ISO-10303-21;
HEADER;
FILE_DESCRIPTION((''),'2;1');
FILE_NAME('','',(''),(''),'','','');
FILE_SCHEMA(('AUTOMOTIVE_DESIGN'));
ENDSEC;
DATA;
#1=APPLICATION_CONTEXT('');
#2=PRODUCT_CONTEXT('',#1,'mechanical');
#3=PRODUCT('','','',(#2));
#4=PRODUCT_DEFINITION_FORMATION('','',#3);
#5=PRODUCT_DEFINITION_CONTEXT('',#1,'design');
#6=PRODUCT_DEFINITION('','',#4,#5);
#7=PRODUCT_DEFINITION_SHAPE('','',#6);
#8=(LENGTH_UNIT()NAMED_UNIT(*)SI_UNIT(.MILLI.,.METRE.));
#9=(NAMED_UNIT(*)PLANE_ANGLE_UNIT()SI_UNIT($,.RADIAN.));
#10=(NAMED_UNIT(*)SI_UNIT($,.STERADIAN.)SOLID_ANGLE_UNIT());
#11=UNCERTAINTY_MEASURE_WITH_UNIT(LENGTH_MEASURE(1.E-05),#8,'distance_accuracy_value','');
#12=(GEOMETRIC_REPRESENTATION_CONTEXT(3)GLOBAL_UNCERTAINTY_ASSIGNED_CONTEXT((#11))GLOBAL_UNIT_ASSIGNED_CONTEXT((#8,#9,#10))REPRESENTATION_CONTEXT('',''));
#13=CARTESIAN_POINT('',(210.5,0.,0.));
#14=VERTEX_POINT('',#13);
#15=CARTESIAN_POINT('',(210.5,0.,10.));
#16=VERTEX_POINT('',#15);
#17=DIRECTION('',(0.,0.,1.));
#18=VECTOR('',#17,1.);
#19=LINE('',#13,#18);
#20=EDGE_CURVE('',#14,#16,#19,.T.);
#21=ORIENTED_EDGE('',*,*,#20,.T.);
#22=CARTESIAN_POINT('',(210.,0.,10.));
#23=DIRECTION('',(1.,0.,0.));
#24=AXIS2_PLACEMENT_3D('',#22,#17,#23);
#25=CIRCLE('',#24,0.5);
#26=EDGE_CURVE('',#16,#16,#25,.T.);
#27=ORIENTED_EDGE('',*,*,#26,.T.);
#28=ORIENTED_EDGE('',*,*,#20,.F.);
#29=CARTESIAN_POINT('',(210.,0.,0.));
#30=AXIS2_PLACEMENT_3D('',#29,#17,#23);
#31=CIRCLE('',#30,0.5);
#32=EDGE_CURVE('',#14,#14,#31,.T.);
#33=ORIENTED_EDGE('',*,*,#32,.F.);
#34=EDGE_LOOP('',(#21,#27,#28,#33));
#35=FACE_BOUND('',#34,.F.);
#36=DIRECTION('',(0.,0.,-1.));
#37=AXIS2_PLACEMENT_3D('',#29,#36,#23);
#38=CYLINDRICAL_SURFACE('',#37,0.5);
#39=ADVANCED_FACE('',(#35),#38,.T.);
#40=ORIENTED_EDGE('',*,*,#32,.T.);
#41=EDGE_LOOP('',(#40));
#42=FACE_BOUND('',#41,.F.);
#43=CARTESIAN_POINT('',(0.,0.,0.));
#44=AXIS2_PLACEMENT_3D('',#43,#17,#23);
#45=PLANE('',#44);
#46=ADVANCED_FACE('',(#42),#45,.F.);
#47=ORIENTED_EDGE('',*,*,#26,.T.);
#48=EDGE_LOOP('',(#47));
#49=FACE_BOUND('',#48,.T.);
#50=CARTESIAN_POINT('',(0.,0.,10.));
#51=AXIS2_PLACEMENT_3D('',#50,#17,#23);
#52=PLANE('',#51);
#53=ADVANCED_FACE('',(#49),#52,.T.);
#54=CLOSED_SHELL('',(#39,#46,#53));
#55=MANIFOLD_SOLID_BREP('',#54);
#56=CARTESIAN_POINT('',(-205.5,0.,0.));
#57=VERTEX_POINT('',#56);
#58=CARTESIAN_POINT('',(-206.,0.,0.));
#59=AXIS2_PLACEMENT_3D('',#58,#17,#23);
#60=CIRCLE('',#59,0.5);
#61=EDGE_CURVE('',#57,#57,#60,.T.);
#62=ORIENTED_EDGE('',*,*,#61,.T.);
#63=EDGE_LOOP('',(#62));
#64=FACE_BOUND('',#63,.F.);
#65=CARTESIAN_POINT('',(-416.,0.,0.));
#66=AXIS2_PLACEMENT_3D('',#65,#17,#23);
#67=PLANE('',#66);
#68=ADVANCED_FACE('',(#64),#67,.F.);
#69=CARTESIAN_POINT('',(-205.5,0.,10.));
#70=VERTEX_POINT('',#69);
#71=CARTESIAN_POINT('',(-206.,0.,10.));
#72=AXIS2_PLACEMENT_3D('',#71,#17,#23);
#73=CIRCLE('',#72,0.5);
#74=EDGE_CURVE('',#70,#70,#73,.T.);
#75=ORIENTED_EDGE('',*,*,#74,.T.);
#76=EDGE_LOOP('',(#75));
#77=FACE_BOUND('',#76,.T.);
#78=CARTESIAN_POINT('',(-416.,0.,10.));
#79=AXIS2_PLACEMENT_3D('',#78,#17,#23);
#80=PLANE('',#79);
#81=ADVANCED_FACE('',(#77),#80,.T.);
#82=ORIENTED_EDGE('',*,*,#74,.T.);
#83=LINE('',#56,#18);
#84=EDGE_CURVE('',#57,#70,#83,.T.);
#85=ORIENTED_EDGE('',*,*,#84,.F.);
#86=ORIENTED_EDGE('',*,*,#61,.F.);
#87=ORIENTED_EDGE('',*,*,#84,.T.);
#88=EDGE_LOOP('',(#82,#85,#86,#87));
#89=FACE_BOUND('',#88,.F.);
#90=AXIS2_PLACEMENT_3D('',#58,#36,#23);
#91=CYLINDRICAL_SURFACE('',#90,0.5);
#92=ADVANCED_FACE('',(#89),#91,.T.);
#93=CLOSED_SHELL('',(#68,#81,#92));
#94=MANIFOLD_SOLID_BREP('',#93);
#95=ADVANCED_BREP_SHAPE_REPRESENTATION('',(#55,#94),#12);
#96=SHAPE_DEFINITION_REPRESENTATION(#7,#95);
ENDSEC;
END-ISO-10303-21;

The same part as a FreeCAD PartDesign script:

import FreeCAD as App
import Part
import Sketcher
from FreeCAD import Vector
Q = App.Units.Quantity

doc = App.newDocument("Part")
body = doc.addObject("PartDesign::Body", "Body")
body.AllowCompound = True

# Sketch on XY plane
sketch1 = body.newObject("Sketcher::SketchObject", "Sketch")
sketch1.AttachmentSupport = (doc.getObject("XY_Plane"), [""])
sketch1.MapMode = "FlatFace"
sketch1.addGeometry(Part.Circle(Vector(210, 0, 0), Vector(0, 0, 1), 0.5), False)
sketch1.addConstraint([
    Sketcher.Constraint("PointOnObject", 0, 3, -1),
    Sketcher.Constraint("Diameter", 0, Q("1 mm")),
    Sketcher.Constraint("DistanceX", -1, 1, 0, 3, Q("210 mm")),
])
pad1 = body.newObject("PartDesign::Pad", "Pad")
pad1.Profile = sketch1
pad1.Length = 10
doc.recompute()

linearpattern = body.newObject("PartDesign::LinearPattern", "LinearPattern")
linearpattern.Originals = [pad1]
linearpattern.Direction = (doc.getObject("X_Axis"), [""])
linearpattern.Mode = "offset"
linearpattern.Offset = 416
linearpattern.Occurrences = 2
linearpattern.Reversed = True
body.Tip = linearpattern

doc.recompute()
